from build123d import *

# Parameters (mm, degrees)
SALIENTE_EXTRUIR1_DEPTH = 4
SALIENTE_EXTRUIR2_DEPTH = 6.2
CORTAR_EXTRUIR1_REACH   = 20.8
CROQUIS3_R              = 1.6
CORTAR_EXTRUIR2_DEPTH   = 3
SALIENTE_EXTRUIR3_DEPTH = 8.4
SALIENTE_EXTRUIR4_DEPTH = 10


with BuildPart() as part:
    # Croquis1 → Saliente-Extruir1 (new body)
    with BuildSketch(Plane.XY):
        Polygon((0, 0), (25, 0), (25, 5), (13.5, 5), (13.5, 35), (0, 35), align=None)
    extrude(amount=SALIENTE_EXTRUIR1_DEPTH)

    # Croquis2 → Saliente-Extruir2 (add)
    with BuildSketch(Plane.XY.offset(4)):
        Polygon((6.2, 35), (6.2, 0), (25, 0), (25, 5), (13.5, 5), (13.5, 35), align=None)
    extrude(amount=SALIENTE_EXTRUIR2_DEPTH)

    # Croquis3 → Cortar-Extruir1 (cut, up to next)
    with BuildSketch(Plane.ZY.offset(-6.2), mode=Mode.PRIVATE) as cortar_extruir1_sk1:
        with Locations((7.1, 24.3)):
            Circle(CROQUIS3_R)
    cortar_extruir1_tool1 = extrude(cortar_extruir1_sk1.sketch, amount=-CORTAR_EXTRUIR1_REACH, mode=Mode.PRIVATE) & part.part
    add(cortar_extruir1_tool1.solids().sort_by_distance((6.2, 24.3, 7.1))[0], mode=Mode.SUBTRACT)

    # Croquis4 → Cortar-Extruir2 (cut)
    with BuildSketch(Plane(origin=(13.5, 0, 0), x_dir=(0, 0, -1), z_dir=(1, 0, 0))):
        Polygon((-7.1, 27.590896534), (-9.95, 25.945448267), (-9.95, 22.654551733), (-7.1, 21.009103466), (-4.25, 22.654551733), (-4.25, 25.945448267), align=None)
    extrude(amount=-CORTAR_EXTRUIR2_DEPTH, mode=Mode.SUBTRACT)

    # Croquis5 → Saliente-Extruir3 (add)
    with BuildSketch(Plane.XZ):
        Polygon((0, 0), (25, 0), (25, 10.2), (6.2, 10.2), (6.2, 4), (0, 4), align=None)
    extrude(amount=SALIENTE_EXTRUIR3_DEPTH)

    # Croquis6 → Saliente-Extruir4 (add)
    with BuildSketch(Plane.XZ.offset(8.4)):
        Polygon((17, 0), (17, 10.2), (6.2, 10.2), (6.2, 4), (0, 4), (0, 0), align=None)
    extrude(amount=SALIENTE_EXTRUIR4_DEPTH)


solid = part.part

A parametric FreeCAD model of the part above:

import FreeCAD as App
import Part
import Sketcher

V = App.Vector
Q = App.Units.Quantity


def add_polygon(sketch, points):
    """Adds a closed chain of lines whose ends are joined by coincident constraints."""
    first, n = sketch.GeometryCount, len(points)
    for a, b in zip(points, points[1:] + points[:1]):
        sketch.addGeometry(Part.LineSegment(App.Vector(*a, 0), App.Vector(*b, 0)), False)
    for i in range(n):
        sketch.addConstraint(Sketcher.Constraint("Coincident", first + i, 2, first + (i + 1) % n, 1))

doc = App.newDocument("Part")
body = doc.addObject("PartDesign::Body", "Body")

sketch1 = body.newObject("Sketcher::SketchObject", "Sketch")
sketch1.AttachmentSupport = (doc.getObject("XY_Plane"), [""])
sketch1.MapMode = "FlatFace"
add_polygon(sketch1, [(0, 0), (25, 0), (25, 5), (14, 5), (14, 35), (0, 35)])
sketch1.addConstraint([
    Sketcher.Constraint("Horizontal", 0),
    Sketcher.Constraint("Vertical", 1),
    Sketcher.Constraint("Horizontal", 2),
    Sketcher.Constraint("Vertical", 3),
    Sketcher.Constraint("Horizontal", 4),
    Sketcher.Constraint("Vertical", 5),
    Sketcher.Constraint("Coincident", 5, 2, -1, 1),
    Sketcher.Constraint("DistanceX", 0, 1, 0, 2, 25.0),
    Sketcher.Constraint("DistanceY", 1, 1, 1, 2, 5.0),
    Sketcher.Constraint("DistanceY", 3, 1, 3, 2, 30.0),
    Sketcher.Constraint("DistanceX", 2, 2, 2, 1, 11.5),
])
pad1 = body.newObject("PartDesign::Pad", "Pad")
pad1.Profile = sketch1
pad1.Length = 4

sketch2 = body.newObject("Sketcher::SketchObject", "Sketch001")
sketch2.AttachmentSupport = (doc.getObject("XY_Plane"), [""])
sketch2.MapMode = "FlatFace"
sketch2.AttachmentOffset = App.Placement(V(0, 0, 4), App.Rotation())
add_polygon(sketch2, [(6, 35), (6, 0), (25, 0), (25, 5), (14, 5), (14, 35)])
sketch2.addConstraint([
    Sketcher.Constraint("Vertical", 0),
    Sketcher.Constraint("Horizontal", 1),
    Sketcher.Constraint("Vertical", 2),
    Sketcher.Constraint("Horizontal", 3),
    Sketcher.Constraint("Vertical", 4),
    Sketcher.Constraint("Horizontal", 5),
    Sketcher.Constraint("PointOnObject", 0, 2, -1),
    Sketcher.Constraint("DistanceY", 0, 2, 0, 1, 35.0),
    Sketcher.Constraint("DistanceY", 2, 1, 2, 2, 5.0),
    Sketcher.Constraint("DistanceX", 1, 1, 1, 2, 18.8),
    Sketcher.Constraint("DistanceX", 3, 2, 3, 1, 11.5),
    Sketcher.Constraint("DistanceX", -1, 1, 1, 2, 25.0),
])
pad2 = body.newObject("PartDesign::Pad", "Pad001")
pad2.Profile = sketch2
pad2.Length = 6.2

sketch3 = body.newObject("Sketcher::SketchObject", "Sketch002")
sketch3.AttachmentSupport = (doc.getObject("YZ_Plane"), [""])
sketch3.MapMode = "FlatFace"
sketch3.AttachmentOffset = App.Placement(V(0, 0, 6.2), App.Rotation())
sketch3.addGeometry(Part.Circle(V(24.3, 7.1, 0), V(0, 0, 1), 1.6), False)
sketch3.addConstraint([
    Sketcher.Constraint("Diameter", 0, 3.2),
    Sketcher.Constraint("DistanceX", -1, 1, 0, 3, 24.3),
    Sketcher.Constraint("DistanceY", -1, 1, 0, 3, 7.1),
])
pocket1 = body.newObject("PartDesign::Pocket", "Pocket")
pocket1.Profile = sketch3
pocket1.Type = "UpToFirst"
pocket1.Reversed = True

sketch4 = body.newObject("Sketcher::SketchObject", "Sketch003")
sketch4.AttachmentSupport = (doc.getObject("YZ_Plane"), [""])
sketch4.MapMode = "FlatFace"
sketch4.AttachmentOffset = App.Placement(V(0, 0, 13.5), App.Rotation())
add_polygon(sketch4, [(27.6, 7.1), (25.9, 9.9), (22.7, 9.9), (21, 7.1), (22.7, 4.2), (25.9, 4.2)])
sketch4.addConstraint([
    Sketcher.Constraint("Horizontal", 1),
    Sketcher.Constraint("Horizontal", 4),
    Sketcher.Constraint("Parallel", 0, 3),
    Sketcher.Constraint("Parallel", 2, 5),
    Sketcher.Constraint("Horizontal", 2, 2, 5, 2),
    Sketcher.Constraint("Vertical", 1, 2, 3, 2),
    Sketcher.Constraint("Vertical", 0, 2, 4, 2),
    Sketcher.Constraint("Angle", 0, Q("120 deg")),
    Sketcher.Constraint("DistanceY", -1, 1, 2, 2, 7.1),
    Sketcher.Constraint("DistanceY", 3, 2, 1, 2, 5.7),
    Sketcher.Constraint("DistanceX", 1, 2, 1, 1, 3.290897),
    Sketcher.Constraint("DistanceX", -1, 1, 0, 2, 25.945448),
])
pocket2 = body.newObject("PartDesign::Pocket", "Pocket001")
pocket2.Profile = sketch4
pocket2.Length = 3

sketch5 = body.newObject("Sketcher::SketchObject", "Sketch004")
sketch5.AttachmentSupport = (doc.getObject("XZ_Plane"), [""])
sketch5.MapMode = "FlatFace"
add_polygon(sketch5, [(0, 0), (25, 0), (25, 10.2), (6.2, 10.2), (6.2, 4), (0, 4)])
sketch5.addConstraint([
    Sketcher.Constraint("Horizontal", 0),
    Sketcher.Constraint("Vertical", 1),
    Sketcher.Constraint("Horizontal", 2),
    Sketcher.Constraint("Vertical", 3),
    Sketcher.Constraint("Horizontal", 4),
    Sketcher.Constraint("Vertical", 5),
    Sketcher.Constraint("Coincident", 5, 2, -1, 1),
    Sketcher.Constraint("Equal", 4, 3),
    Sketcher.Constraint("DistanceX", 0, 1, 0, 2, 25.0),
    Sketcher.Constraint("DistanceY", 5, 2, 5, 1, 4.0),
    Sketcher.Constraint("DistanceX", 2, 2, 2, 1, 18.8),
])
pad3 = body.newObject("PartDesign::Pad", "Pad002")
pad3.Profile = sketch5
pad3.Length = 8.4

sketch6 = body.newObject("Sketcher::SketchObject", "Sketch005")
sketch6.AttachmentSupport = (doc.getObject("XZ_Plane"), [""])
sketch6.MapMode = "FlatFace"
sketch6.AttachmentOffset = App.Placement(V(0, 0, 8.4), App.Rotation())
add_polygon(sketch6, [(17, 0), (17, 10.2), (6.2, 10.2), (6.2, 4), (0, 4), (0, 0)])
sketch6.addConstraint([
    Sketcher.Constraint("Vertical", 0),
    Sketcher.Constraint("Horizontal", 1),
    Sketcher.Constraint("Vertical", 2),
    Sketcher.Constraint("Horizontal", 3),
    Sketcher.Constraint("Vertical", 4),
    Sketcher.Constraint("Horizontal", 5),
    Sketcher.Constraint("Coincident", 4, 2, -1, 1),
    Sketcher.Constraint("Equal", 3, 2),
    Sketcher.Constraint("DistanceX", 5, 1, 5, 2, 17.0),
    Sketcher.Constraint("DistanceY", 4, 2, 4, 1, 4.0),
    Sketcher.Constraint("DistanceX", 1, 2, 1, 1, 10.8),
])
pad4 = body.newObject("PartDesign::Pad", "Pad003")
pad4.Profile = sketch6
pad4.Length = 10

doc.recompute()
